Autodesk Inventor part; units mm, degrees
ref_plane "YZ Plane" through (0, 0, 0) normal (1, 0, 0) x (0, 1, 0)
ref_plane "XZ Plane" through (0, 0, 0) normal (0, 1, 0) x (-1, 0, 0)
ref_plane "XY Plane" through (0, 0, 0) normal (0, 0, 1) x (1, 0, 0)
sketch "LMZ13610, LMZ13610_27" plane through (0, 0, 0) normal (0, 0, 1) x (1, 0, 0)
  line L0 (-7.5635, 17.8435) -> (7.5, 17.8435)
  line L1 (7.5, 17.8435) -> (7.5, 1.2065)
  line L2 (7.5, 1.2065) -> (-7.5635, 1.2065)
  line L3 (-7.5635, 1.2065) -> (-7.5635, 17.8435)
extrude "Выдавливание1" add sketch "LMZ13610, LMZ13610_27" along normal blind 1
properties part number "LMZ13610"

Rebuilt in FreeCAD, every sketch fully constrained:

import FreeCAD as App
import Part
import Sketcher

V = App.Vector


def add_polygon(sketch, points):
    """Adds a closed chain of lines whose ends are joined by coincident constraints."""
    first, n = sketch.GeometryCount, len(points)
    for a, b in zip(points, points[1:] + points[:1]):
        sketch.addGeometry(Part.LineSegment(App.Vector(*a, 0), App.Vector(*b, 0)), False)
    for i in range(n):
        sketch.addConstraint(Sketcher.Constraint("Coincident", first + i, 2, first + (i + 1) % n, 1))

doc = App.newDocument("Part")
body = doc.addObject("PartDesign::Body", "Body")

sketch1 = body.newObject("Sketcher::SketchObject", "Sketch")
sketch1.AttachmentSupport = (doc.getObject("XY_Plane"), [""])
sketch1.MapMode = "FlatFace"
add_polygon(sketch1, [(7.5, 17.8435), (-7.5635, 17.8435), (-7.5635, 1.2065), (7.5, 1.2065)])
sketch1.addConstraint(Sketcher.Constraint("Horizontal", 0))
sketch1.addConstraint(Sketcher.Constraint("Vertical", 1))
sketch1.addConstraint(Sketcher.Constraint("Horizontal", 2))
sketch1.addConstraint(Sketcher.Constraint("Vertical", 3))
sketch1.addConstraint(Sketcher.Constraint("DistanceX", -1, 1, 2, 2, 7.5))
sketch1.addConstraint(Sketcher.Constraint("DistanceY", 1, 2, 1, 1, 16.637))
sketch1.addConstraint(Sketcher.Constraint("DistanceX", 0, 2, 0, 1, 15.0635))
sketch1.addConstraint(Sketcher.Constraint("DistanceY", -1, 1, 0, 2, 17.8435))
pad1 = body.newObject("PartDesign::Pad", "Pad")
pad1.Profile = sketch1
pad1.Length = 1

doc.recompute()
